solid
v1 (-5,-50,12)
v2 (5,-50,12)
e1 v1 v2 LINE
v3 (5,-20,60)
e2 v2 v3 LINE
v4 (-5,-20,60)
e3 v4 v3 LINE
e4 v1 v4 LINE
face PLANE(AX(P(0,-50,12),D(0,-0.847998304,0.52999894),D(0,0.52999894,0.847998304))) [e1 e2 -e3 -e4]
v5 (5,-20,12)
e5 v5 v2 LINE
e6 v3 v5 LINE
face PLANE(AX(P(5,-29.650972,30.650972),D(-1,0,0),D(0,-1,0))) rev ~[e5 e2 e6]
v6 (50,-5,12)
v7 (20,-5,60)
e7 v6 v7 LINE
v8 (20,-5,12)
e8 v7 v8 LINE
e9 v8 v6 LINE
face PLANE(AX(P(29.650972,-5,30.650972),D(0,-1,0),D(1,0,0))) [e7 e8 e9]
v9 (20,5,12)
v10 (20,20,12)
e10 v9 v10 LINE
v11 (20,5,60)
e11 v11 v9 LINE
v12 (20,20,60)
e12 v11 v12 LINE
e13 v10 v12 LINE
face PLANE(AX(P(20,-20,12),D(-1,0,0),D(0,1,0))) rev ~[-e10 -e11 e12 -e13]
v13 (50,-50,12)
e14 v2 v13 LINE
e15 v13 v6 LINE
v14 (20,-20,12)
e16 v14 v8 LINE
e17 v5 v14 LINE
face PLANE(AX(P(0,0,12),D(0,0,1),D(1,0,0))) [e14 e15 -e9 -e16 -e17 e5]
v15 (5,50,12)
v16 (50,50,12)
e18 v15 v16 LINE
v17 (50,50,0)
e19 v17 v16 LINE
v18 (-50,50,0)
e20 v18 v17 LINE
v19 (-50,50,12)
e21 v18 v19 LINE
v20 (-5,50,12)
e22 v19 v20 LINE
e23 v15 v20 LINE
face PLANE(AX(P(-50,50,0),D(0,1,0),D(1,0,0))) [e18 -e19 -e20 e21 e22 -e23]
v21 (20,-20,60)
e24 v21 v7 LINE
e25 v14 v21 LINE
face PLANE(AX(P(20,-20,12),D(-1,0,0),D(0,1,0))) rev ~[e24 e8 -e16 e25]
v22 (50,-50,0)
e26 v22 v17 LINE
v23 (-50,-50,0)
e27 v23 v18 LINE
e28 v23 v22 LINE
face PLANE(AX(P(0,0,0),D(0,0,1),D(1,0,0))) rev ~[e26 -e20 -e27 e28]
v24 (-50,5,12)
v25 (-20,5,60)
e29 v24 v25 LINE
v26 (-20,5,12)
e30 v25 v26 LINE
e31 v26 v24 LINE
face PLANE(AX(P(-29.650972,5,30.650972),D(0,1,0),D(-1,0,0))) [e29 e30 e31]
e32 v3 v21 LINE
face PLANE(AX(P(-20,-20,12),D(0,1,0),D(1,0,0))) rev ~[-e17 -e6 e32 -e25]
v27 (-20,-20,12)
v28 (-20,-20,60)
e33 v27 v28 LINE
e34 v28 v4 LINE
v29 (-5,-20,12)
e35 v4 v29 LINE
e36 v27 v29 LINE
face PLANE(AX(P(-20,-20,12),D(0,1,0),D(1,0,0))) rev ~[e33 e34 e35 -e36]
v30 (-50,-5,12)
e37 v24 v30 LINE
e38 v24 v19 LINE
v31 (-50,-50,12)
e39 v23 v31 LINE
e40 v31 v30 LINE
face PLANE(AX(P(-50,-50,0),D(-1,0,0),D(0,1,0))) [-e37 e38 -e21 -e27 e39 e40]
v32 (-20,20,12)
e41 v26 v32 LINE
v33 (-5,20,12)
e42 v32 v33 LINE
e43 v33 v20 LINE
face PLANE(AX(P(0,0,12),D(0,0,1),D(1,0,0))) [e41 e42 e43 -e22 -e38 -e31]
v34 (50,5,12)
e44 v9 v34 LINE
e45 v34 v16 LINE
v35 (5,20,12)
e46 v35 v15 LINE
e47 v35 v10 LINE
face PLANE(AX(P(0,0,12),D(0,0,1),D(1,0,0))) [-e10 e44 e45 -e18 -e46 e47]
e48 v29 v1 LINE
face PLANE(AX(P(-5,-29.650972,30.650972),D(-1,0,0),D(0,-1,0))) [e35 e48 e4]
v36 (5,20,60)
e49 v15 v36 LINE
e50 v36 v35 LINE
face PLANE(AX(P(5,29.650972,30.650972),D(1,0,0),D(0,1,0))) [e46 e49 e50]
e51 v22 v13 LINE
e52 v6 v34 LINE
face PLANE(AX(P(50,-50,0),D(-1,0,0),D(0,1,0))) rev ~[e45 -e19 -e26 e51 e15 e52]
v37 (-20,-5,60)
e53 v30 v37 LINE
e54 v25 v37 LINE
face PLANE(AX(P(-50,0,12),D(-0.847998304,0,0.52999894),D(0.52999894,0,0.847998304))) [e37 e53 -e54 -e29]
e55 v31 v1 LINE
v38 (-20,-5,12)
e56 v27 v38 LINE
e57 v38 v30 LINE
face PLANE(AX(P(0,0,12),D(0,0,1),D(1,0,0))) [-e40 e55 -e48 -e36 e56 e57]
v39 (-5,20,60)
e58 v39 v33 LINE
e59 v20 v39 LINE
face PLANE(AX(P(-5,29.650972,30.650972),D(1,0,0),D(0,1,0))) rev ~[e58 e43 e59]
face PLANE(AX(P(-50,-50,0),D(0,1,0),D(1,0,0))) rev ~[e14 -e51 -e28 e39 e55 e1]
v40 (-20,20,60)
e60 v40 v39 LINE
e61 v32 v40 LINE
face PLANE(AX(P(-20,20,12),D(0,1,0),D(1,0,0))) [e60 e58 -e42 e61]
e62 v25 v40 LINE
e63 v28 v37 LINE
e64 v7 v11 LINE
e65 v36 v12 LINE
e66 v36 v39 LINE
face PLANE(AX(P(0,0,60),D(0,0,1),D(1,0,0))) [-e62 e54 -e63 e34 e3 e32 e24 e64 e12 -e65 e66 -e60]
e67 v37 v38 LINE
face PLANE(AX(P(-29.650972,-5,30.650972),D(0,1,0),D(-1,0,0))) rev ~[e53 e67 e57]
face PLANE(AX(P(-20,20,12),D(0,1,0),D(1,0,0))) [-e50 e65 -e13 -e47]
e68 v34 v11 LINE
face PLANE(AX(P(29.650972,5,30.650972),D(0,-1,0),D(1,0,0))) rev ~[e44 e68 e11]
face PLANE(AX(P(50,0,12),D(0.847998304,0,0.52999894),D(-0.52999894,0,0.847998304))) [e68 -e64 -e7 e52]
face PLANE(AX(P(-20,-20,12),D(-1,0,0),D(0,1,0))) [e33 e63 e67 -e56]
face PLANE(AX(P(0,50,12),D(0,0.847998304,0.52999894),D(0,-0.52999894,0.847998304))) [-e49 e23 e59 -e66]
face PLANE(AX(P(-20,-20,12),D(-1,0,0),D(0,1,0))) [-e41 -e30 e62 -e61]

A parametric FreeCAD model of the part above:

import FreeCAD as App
import Part
import Sketcher
Q = App.Units.Quantity

doc = App.newDocument("Part")
body = doc.addObject("PartDesign::Body", "Body")

sketch1 = doc.addObject("Sketcher::SketchObject", "Sketch")
body.addObject(sketch1)
sketch1.AttachmentSupport = (doc.XY_Plane, [""])
sketch1.MapMode = "FlatFace"
sketch1.addGeometry([
    Part.LineSegment(App.Vector(-50, 50, 0), App.Vector(-50, -50, 0)),
    Part.LineSegment(App.Vector(-50, -50, 0), App.Vector(50, -50, 0)),
    Part.LineSegment(App.Vector(50, -50, 0), App.Vector(50, 50, 0)),
    Part.LineSegment(App.Vector(50, 50, 0), App.Vector(-50, 50, 0)),
], False)
sketch1.addConstraint([
    Sketcher.Constraint("Coincident", 0, 2, 1, 1),
    Sketcher.Constraint("Coincident", 1, 2, 2, 1),
    Sketcher.Constraint("Coincident", 2, 2, 3, 1),
    Sketcher.Constraint("Coincident", 3, 2, 0, 1),
    Sketcher.Constraint("Vertical", 0),
    Sketcher.Constraint("Horizontal", 1),
    Sketcher.Constraint("Vertical", 2),
    Sketcher.Constraint("Horizontal", 3),
    Sketcher.Constraint("Symmetric", 0, 2, 2, 2, -1, 1),
    Sketcher.Constraint("Equal", 3, 0),
    Sketcher.Constraint("DistanceX", 1, 1, 1, 2, Q("100 mm")),
])
pad1 = doc.addObject("PartDesign::Pad", "Pad")
body.addObject(pad1)
pad1.Profile = sketch1
pad1.Length = 12

sketch2 = doc.addObject("Sketcher::SketchObject", "Sketch001")
body.addObject(sketch2)
sketch2.AttachmentSupport = (doc.XY_Plane, [""])
sketch2.MapMode = "FlatFace"
sketch2.AttachmentOffset = App.Placement(App.Vector(0, 0, 12), App.Rotation())
sketch2.addGeometry([
    Part.LineSegment(App.Vector(-20, 20, 0), App.Vector(-20, -20, 0)),
    Part.LineSegment(App.Vector(-20, -20, 0), App.Vector(20, -20, 0)),
    Part.LineSegment(App.Vector(20, -20, 0), App.Vector(20, 20, 0)),
    Part.LineSegment(App.Vector(20, 20, 0), App.Vector(-20, 20, 0)),
], False)
sketch2.addConstraint([
    Sketcher.Constraint("Coincident", 0, 2, 1, 1),
    Sketcher.Constraint("Coincident", 1, 2, 2, 1),
    Sketcher.Constraint("Coincident", 2, 2, 3, 1),
    Sketcher.Constraint("Coincident", 3, 2, 0, 1),
    Sketcher.Constraint("Vertical", 0),
    Sketcher.Constraint("Horizontal", 1),
    Sketcher.Constraint("Vertical", 2),
    Sketcher.Constraint("Horizontal", 3),
    Sketcher.Constraint("Symmetric", 0, 2, 2, 2, -1, 1),
    Sketcher.Constraint("Equal", 3, 0),
    Sketcher.Constraint("DistanceX", 1, 1, 1, 2, Q("40 mm")),
])
pad2 = doc.addObject("PartDesign::Pad", "Pad001")
body.addObject(pad2)
pad2.Profile = sketch2
pad2.Length = 48

sketch3 = doc.addObject("Sketcher::SketchObject", "Sketch002")
body.addObject(sketch3)
sketch3.AttachmentSupport = (doc.XZ_Plane, [""])
sketch3.MapMode = "FlatFace"
sketch3.addGeometry([
    Part.LineSegment(App.Vector(20, 60, 0), App.Vector(20, 12, 0)),
    Part.LineSegment(App.Vector(20, 12, 0), App.Vector(50, 12, 0)),
    Part.LineSegment(App.Vector(50, 12, 0), App.Vector(20, 60, 0)),
], False)
sketch3.addConstraint([
    Sketcher.Constraint("Coincident", 0, 2, 1, 1),
    Sketcher.Constraint("Coincident", 1, 2, 2, 1),
    Sketcher.Constraint("Coincident", 2, 2, 0, 1),
    Sketcher.Constraint("Vertical", 0),
    Sketcher.Constraint("Horizontal", 1),
    Sketcher.Constraint("DistanceX", 1, 1, 1, 2, Q("30 mm")),
    Sketcher.Constraint("DistanceY", 0, 2, 0, 1, Q("48 mm")),
    Sketcher.Constraint("DistanceX", -1, 1, 0, 2, Q("20 mm")),
    Sketcher.Constraint("DistanceY", -1, 1, 0, 2, Q("12 mm")),
])
pad3 = doc.addObject("PartDesign::Pad", "Pad002")
body.addObject(pad3)
pad3.Profile = sketch3
pad3.Length = 10
pad3.Midplane = True
doc.recompute()

polarpattern = doc.addObject("PartDesign::PolarPattern", "PolarPattern")
body.addObject(polarpattern)
polarpattern.Originals = [pad3]
polarpattern.Axis = (doc.Z_Axis, [""])
polarpattern.Angle = 360
polarpattern.Occurrences = 4
body.Tip = polarpattern

doc.recompute()
